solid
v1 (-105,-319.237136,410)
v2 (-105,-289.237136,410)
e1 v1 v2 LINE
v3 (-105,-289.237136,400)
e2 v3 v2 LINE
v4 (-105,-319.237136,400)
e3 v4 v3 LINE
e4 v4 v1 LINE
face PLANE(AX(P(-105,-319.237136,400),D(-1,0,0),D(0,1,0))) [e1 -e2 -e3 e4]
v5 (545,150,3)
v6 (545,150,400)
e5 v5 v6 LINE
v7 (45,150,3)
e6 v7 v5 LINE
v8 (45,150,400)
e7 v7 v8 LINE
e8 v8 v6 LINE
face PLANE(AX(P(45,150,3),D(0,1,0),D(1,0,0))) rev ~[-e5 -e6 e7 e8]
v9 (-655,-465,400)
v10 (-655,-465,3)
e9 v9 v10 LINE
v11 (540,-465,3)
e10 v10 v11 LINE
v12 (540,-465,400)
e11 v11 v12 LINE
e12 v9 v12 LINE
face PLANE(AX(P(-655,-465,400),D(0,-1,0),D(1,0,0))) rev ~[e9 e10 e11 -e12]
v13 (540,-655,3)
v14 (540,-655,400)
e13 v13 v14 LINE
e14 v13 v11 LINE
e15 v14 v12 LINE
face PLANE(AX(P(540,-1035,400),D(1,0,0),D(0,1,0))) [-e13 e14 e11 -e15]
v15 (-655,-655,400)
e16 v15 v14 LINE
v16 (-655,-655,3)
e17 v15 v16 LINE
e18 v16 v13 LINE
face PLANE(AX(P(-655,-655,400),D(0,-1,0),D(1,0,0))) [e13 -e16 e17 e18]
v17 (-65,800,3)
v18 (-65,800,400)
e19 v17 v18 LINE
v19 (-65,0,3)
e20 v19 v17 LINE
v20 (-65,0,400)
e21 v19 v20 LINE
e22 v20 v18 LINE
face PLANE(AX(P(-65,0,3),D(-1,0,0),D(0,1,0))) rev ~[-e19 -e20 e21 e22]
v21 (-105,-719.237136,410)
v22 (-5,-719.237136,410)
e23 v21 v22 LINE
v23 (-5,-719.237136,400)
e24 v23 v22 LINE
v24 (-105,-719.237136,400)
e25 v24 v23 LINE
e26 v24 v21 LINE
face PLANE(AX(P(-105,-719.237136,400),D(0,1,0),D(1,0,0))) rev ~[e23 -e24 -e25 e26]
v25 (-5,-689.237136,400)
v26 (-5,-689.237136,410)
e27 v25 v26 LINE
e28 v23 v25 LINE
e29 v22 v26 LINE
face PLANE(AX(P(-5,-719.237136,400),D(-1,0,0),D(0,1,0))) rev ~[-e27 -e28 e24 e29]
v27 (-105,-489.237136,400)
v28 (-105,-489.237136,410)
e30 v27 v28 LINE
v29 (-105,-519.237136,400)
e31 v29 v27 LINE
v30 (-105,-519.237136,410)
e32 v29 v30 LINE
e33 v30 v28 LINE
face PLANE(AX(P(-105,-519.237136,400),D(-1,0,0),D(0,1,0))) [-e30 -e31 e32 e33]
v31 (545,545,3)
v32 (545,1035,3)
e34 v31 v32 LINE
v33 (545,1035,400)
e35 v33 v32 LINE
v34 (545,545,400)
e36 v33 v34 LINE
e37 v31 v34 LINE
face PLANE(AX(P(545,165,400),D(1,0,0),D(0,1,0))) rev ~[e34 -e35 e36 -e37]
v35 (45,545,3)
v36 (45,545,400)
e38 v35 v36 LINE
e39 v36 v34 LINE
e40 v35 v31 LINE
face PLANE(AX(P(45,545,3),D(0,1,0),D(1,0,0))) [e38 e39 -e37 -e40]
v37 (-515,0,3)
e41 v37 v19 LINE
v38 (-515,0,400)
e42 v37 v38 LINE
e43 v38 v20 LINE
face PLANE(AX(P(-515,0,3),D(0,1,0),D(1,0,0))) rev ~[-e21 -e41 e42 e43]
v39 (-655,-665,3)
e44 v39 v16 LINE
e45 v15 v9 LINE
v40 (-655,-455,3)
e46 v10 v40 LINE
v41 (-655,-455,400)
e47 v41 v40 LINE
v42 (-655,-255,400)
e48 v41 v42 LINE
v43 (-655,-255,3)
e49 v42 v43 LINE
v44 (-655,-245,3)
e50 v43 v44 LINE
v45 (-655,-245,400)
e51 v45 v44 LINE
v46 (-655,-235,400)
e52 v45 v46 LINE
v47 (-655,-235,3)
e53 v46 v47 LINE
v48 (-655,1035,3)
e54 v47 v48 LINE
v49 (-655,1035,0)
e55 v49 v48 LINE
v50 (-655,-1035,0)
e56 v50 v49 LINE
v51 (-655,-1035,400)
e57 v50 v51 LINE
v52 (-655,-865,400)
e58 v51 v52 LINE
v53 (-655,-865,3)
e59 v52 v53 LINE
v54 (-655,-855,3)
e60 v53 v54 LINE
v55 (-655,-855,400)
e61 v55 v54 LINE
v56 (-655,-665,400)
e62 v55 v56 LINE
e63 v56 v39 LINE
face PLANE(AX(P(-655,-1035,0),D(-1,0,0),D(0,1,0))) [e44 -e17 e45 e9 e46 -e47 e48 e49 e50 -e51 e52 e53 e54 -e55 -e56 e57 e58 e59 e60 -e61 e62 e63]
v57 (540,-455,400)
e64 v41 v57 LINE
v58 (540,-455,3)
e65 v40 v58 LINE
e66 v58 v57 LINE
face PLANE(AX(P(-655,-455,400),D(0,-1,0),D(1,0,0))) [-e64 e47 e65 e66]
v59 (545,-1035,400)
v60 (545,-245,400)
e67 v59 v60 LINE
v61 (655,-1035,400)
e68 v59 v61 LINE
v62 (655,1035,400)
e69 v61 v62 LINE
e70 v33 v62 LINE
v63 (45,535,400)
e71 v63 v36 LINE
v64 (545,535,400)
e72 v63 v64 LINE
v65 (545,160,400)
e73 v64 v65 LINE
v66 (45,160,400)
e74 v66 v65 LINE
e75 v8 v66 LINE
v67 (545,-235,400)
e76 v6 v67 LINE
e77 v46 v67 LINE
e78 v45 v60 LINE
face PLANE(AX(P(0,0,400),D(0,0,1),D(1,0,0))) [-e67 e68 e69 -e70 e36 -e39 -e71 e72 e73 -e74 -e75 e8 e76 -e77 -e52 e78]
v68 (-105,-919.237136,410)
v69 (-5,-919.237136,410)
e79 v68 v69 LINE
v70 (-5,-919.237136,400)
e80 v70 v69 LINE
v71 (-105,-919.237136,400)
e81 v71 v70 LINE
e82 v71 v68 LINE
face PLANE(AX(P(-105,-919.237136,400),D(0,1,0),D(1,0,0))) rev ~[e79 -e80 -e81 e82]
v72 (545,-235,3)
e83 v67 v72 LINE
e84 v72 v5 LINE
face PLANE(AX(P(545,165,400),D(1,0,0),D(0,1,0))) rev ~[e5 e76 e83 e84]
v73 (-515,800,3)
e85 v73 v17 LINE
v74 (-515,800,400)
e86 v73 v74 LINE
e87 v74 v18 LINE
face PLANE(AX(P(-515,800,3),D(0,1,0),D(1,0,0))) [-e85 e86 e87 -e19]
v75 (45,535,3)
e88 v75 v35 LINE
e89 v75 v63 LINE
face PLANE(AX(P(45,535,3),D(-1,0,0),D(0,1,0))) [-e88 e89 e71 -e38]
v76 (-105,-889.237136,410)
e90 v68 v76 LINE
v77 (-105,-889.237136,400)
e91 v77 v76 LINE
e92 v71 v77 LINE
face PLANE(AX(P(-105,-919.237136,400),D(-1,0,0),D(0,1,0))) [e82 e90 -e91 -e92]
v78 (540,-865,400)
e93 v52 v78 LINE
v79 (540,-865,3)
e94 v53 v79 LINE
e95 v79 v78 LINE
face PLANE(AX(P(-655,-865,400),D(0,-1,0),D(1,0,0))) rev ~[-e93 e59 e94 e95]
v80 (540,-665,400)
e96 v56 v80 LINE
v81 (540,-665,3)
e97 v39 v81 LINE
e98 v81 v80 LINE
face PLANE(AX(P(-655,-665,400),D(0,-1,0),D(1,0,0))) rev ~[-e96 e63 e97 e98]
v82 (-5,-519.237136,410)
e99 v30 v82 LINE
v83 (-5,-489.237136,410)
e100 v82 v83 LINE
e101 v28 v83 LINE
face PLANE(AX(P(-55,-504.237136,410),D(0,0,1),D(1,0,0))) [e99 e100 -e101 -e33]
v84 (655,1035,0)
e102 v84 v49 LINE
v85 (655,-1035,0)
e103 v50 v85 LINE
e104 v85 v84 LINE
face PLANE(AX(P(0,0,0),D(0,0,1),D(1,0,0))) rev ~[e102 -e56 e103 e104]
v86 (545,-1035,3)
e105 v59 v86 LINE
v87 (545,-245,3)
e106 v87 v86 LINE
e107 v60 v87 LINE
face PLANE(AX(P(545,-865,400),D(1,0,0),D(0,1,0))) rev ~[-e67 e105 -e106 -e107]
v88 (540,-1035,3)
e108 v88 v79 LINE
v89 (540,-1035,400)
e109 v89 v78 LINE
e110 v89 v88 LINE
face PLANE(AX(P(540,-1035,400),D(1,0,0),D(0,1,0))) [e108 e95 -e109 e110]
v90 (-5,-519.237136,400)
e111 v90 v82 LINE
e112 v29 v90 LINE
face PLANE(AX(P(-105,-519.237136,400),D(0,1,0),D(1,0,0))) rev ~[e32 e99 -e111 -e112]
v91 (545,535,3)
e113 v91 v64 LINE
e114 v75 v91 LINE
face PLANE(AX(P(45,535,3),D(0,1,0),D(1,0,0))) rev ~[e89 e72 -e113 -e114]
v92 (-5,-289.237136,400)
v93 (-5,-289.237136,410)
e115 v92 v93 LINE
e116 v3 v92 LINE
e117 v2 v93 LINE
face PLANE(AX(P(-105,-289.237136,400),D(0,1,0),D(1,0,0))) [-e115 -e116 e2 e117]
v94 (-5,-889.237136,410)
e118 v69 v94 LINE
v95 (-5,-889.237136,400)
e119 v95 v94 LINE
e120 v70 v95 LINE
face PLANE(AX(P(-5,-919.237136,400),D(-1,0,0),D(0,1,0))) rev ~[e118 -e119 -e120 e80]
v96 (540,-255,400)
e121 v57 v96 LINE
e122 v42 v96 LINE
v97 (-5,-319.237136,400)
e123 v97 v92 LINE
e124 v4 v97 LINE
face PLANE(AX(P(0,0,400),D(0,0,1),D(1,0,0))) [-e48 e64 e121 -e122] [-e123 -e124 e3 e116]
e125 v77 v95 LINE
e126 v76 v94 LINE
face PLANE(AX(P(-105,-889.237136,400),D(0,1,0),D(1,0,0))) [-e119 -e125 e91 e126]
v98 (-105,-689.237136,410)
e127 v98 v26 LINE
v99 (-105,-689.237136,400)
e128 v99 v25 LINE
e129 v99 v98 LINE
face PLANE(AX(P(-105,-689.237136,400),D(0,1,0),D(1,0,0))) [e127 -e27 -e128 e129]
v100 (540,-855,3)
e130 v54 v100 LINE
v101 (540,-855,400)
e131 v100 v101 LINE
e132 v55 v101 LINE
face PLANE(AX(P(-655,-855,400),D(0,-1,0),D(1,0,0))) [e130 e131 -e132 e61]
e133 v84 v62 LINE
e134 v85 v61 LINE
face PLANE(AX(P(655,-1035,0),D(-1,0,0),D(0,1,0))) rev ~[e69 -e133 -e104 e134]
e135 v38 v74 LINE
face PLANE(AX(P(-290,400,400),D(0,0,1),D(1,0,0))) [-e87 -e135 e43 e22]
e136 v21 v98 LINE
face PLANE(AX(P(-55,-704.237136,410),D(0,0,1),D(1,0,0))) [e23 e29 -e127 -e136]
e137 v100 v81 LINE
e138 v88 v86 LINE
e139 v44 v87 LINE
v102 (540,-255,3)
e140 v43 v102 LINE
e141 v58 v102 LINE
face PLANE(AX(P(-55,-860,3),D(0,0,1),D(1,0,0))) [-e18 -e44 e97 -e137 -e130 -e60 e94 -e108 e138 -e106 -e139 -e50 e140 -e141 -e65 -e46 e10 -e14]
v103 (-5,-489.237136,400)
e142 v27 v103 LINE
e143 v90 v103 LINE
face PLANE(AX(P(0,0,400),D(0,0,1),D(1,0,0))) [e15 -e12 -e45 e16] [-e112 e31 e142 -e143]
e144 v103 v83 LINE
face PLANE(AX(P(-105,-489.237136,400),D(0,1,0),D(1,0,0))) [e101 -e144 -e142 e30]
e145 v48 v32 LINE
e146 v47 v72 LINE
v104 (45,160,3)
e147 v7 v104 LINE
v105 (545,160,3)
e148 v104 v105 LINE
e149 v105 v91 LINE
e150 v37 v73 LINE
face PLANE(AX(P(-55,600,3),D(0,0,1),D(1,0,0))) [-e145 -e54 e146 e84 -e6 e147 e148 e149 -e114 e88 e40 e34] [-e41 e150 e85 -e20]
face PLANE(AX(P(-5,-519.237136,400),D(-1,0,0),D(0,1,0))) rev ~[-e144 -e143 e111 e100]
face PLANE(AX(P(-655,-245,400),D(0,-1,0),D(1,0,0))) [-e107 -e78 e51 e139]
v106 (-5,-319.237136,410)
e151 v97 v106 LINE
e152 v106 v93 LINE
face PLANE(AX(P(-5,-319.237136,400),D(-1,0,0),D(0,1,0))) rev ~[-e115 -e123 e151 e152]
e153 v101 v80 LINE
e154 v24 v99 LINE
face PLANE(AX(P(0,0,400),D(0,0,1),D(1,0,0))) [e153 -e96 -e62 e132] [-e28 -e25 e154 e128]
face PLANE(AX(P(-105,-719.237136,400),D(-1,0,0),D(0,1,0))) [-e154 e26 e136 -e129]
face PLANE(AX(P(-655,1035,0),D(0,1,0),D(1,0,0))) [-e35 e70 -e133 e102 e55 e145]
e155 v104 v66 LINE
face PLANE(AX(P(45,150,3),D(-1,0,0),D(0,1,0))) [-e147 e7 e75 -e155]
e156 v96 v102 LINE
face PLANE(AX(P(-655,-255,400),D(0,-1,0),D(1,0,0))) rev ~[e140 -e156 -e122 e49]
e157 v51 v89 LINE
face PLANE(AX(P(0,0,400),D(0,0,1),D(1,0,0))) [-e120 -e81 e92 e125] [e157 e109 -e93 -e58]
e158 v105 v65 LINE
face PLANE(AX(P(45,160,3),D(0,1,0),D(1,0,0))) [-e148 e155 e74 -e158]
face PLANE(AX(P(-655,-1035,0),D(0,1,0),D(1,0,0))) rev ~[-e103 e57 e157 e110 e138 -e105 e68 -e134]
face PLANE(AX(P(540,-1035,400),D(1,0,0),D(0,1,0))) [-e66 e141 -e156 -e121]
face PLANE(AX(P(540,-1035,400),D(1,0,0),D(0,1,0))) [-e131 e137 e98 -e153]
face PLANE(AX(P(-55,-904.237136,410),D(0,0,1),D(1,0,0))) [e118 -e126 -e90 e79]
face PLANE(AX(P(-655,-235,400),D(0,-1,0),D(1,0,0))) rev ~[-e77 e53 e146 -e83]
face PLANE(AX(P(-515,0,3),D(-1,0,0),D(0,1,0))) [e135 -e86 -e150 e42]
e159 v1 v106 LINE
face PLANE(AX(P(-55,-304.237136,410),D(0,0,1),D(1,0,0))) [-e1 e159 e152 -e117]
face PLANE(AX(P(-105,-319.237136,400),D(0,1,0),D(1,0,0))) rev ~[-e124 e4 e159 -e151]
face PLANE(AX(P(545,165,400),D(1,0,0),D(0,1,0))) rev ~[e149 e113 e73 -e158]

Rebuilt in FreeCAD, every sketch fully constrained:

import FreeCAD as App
import Part
import Sketcher
from FreeCAD import Vector
Q = App.Units.Quantity


def add_polygon(sketch, points):
    """Adds a closed chain of lines whose ends are joined by coincident constraints."""
    first, n = sketch.GeometryCount, len(points)
    for a, b in zip(points, points[1:] + points[:1]):
        sketch.addGeometry(Part.LineSegment(App.Vector(*a, 0), App.Vector(*b, 0)), False)
    for i in range(n):
        sketch.addConstraint(Sketcher.Constraint("Coincident", first + i, 2, first + (i + 1) % n, 1))

doc = App.newDocument("Part")
body = doc.addObject("PartDesign::Body", "Body")

# Sketch on XY plane
sketch1 = doc.addObject("Sketcher::SketchObject", "Sketch")
body.addObject(sketch1)
sketch1.AttachmentSupport = (doc.XY_Plane, [""])
sketch1.MapMode = "FlatFace"
add_polygon(sketch1, [(-655, 1035), (-655, -1035), (655, -1035), (655, 1035)])  # lines 0-3
sketch1.addConstraint([
    Sketcher.Constraint("Vertical", 0),
    Sketcher.Constraint("Horizontal", 1),
    Sketcher.Constraint("Vertical", 2),
    Sketcher.Constraint("Horizontal", 3),
    Sketcher.Constraint("Symmetric", 0, 2, 2, 2, -1, 1),
    Sketcher.Constraint("DistanceX", 1, 1, 1, 2, Q("1310 mm")),
    Sketcher.Constraint("DistanceY", 0, 2, 0, 1, Q("2070 mm")),
])
pad1 = doc.addObject("PartDesign::Pad", "Pad")
body.addObject(pad1)
pad1.Profile = sketch1
pad1.Length = 400

# Sketch on XY plane
sketch2 = doc.addObject("Sketcher::SketchObject", "Sketch001")
body.addObject(sketch2)
sketch2.AttachmentSupport = (doc.XY_Plane, [""])
sketch2.MapMode = "FlatFace"
sketch2.AttachmentOffset = App.Placement(Vector(0, 0, 400), App.Rotation())
add_polygon(sketch2, [(-655, 165), (-655, -235), (545, -235), (545, 165)])  # lines 0-3
sketch2.addConstraint([
    Sketcher.Constraint("Vertical", 0),
    Sketcher.Constraint("Horizontal", 1),
    Sketcher.Constraint("Vertical", 2),
    Sketcher.Constraint("Horizontal", 3),
    Sketcher.Constraint("DistanceX", 1, 1, 1, 2, Q("1200 mm")),
    Sketcher.Constraint("DistanceY", 0, 2, 0, 1, Q("400 mm")),
    Sketcher.Constraint("DistanceX", 0, 2, -1, 1, Q("655 mm")),
    Sketcher.Constraint("DistanceY", 0, 2, -1, 1, Q("235 mm")),
])
pocket1 = doc.addObject("PartDesign::Pocket", "Pocket")
body.addObject(pocket1)
pocket1.Profile = sketch2
pocket1.Length = 397

# Sketch on XY plane
sketch3 = doc.addObject("Sketcher::SketchObject", "Sketch002")
body.addObject(sketch3)
sketch3.AttachmentSupport = (doc.XY_Plane, [""])
sketch3.MapMode = "FlatFace"
sketch3.AttachmentOffset = App.Placement(Vector(0, 0, 400), App.Rotation())
add_polygon(sketch3, [(-655, -245), (-655, -255), (545, -255), (545, -245)])  # lines 0-3
sketch3.addConstraint([
    Sketcher.Constraint("Vertical", 0),
    Sketcher.Constraint("Horizontal", 1),
    Sketcher.Constraint("Vertical", 2),
    Sketcher.Constraint("Horizontal", 3),
    Sketcher.Constraint("DistanceX", 1, 1, 1, 2, Q("1200 mm")),
    Sketcher.Constraint("DistanceY", 0, 2, 0, 1, Q("10 mm")),
    Sketcher.Constraint("DistanceX", 0, 2, -1, 1, Q("655 mm")),
    Sketcher.Constraint("DistanceY", 0, 2, -1, 1, Q("255 mm")),
])
pocket2 = doc.addObject("PartDesign::Pocket", "Pocket001")
body.addObject(pocket2)
pocket2.Profile = sketch3
pocket2.Length = 397

# Sketch on XY plane
sketch4 = doc.addObject("Sketcher::SketchObject", "Sketch003")
body.addObject(sketch4)
sketch4.AttachmentSupport = (doc.XY_Plane, [""])
sketch4.MapMode = "FlatFace"
sketch4.AttachmentOffset = App.Placement(Vector(0, 0, 400), App.Rotation())
add_polygon(sketch4, [(-655, -455), (-655, -465), (545, -465), (545, -455)])  # lines 0-3
sketch4.addConstraint([
    Sketcher.Constraint("Vertical", 0),
    Sketcher.Constraint("Horizontal", 1),
    Sketcher.Constraint("Vertical", 2),
    Sketcher.Constraint("Horizontal", 3),
    Sketcher.Constraint("DistanceX", 1, 1, 1, 2, Q("1200 mm")),
    Sketcher.Constraint("DistanceY", 0, 2, 0, 1, Q("10 mm")),
    Sketcher.Constraint("DistanceX", 0, 2, -1, 1, Q("655 mm")),
    Sketcher.Constraint("DistanceY", 0, 2, -1, 1, Q("465 mm")),
])
pocket3 = doc.addObject("PartDesign::Pocket", "Pocket002")
body.addObject(pocket3)
pocket3.Profile = sketch4
pocket3.Length = 397
doc.recompute()

linearpattern = doc.addObject("PartDesign::LinearPattern", "LinearPattern")
body.addObject(linearpattern)
linearpattern.Originals = [pocket3]
linearpattern.Direction = (doc.Y_Axis, [""])
linearpattern.Mode = "offset"
linearpattern.Offset = 200
linearpattern.Occurrences = 3
linearpattern.Reversed = True
body.Tip = linearpattern

# Sketch on XY plane
sketch5 = doc.addObject("Sketcher::SketchObject", "Sketch004")
body.addObject(sketch5)
sketch5.AttachmentSupport = (doc.XY_Plane, [""])
sketch5.MapMode = "FlatFace"
sketch5.AttachmentOffset = App.Placement(Vector(0, 0, 400), App.Rotation())
add_polygon(sketch5, [(-105, -289), (-105, -319), (-5, -319), (-5, -289)])  # lines 0-3
sketch5.addConstraint([
    Sketcher.Constraint("Vertical", 0),
    Sketcher.Constraint("Horizontal", 1),
    Sketcher.Constraint("Vertical", 2),
    Sketcher.Constraint("Horizontal", 3),
    Sketcher.Constraint("DistanceX", 1, 1, 1, 2, Q("100 mm")),
    Sketcher.Constraint("DistanceY", 0, 2, 0, 1, Q("30 mm")),
    Sketcher.Constraint("DistanceX", 0, 2, -1, 1, Q("105 mm")),
    Sketcher.Constraint("DistanceY", 0, 2, -1, 1, Q("319.237136 mm")),
])
pad2 = doc.addObject("PartDesign::Pad", "Pad001")
body.addObject(pad2)
pad2.Profile = sketch5
pad2.Length = 10
doc.recompute()

linearpattern2 = doc.addObject("PartDesign::LinearPattern", "LinearPattern001")
body.addObject(linearpattern2)
linearpattern2.Originals = [pad2]
linearpattern2.Direction = (doc.Y_Axis, [""])
linearpattern2.Mode = "offset"
linearpattern2.Offset = 200
linearpattern2.Occurrences = 4
linearpattern2.Reversed = True
body.Tip = linearpattern2

# Sketch on XY plane
sketch6 = doc.addObject("Sketcher::SketchObject", "Sketch005")
body.addObject(sketch6)
sketch6.AttachmentSupport = (doc.XY_Plane, [""])
sketch6.MapMode = "FlatFace"
sketch6.AttachmentOffset = App.Placement(Vector(0, 0, 400), App.Rotation())
add_polygon(sketch6, [(45, 675), (45, 665), (545, 665), (545, 675)])  # lines 0-3
sketch6.addConstraint([
    Sketcher.Constraint("Vertical", 0),
    Sketcher.Constraint("Horizontal", 1),
    Sketcher.Constraint("Vertical", 2),
    Sketcher.Constraint("Horizontal", 3),
    Sketcher.Constraint("DistanceX", 1, 1, 1, 2, Q("500 mm")),
    Sketcher.Constraint("DistanceY", 0, 2, 0, 1, Q("10 mm")),
    Sketcher.Constraint("DistanceX", -1, 1, 0, 2, Q("45 mm")),
    Sketcher.Constraint("DistanceY", -1, 1, 0, 2, Q("665 mm")),
])
pocket4 = doc.addObject("PartDesign::Pocket", "Pocket003")
body.addObject(pocket4)
pocket4.Profile = sketch6
pocket4.Length = 397

# Sketch on XY plane
sketch7 = doc.addObject("Sketcher::SketchObject", "Sketch006")
body.addObject(sketch7)
sketch7.AttachmentSupport = (doc.XY_Plane, [""])
sketch7.MapMode = "FlatFace"
sketch7.AttachmentOffset = App.Placement(Vector(0, 0, 400), App.Rotation())
add_polygon(sketch7, [(-655, 1035), (-655, 165), (545, 165), (545, 1035)])  # lines 0-3
sketch7.addConstraint([
    Sketcher.Constraint("Vertical", 0),
    Sketcher.Constraint("Horizontal", 1),
    Sketcher.Constraint("Vertical", 2),
    Sketcher.Constraint("Horizontal", 3),
    Sketcher.Constraint("DistanceX", 1, 1, 1, 2, Q("1200 mm")),
    Sketcher.Constraint("DistanceY", 0, 2, 0, 1, Q("870 mm")),
    Sketcher.Constraint("DistanceX", 0, 2, -1, 1, Q("655 mm")),
    Sketcher.Constraint("DistanceY", -1, 1, 0, 2, Q("165 mm")),
])
pocket5 = doc.addObject("PartDesign::Pocket", "Pocket004")
body.addObject(pocket5)
pocket5.Profile = sketch7
pocket5.Length = 397
body2 = doc.addObject("PartDesign::Body", "Body001")

# Sketch on XY plane
sketch8 = doc.addObject("Sketcher::SketchObject", "Sketch007")
body2.addObject(sketch8)
sketch8.AttachmentSupport = (doc.getObject("XY_Plane001"), [""])
sketch8.MapMode = "FlatFace"
sketch8.AttachmentOffset = App.Placement(Vector(0, 0, 400), App.Rotation())
add_polygon(sketch8, [(545, 1035), (545, -1035), (655, -1035), (655, 1035)])  # lines 0-3
sketch8.addConstraint([
    Sketcher.Constraint("Vertical", 0),
    Sketcher.Constraint("Horizontal", 1),
    Sketcher.Constraint("Vertical", 2),
    Sketcher.Constraint("Horizontal", 3),
    Sketcher.Constraint("DistanceX", 1, 1, 1, 2, Q("110 mm")),
    Sketcher.Constraint("DistanceY", 0, 2, 0, 1, Q("2070 mm")),
    Sketcher.Constraint("DistanceX", -1, 1, 0, 2, Q("545 mm")),
    Sketcher.Constraint("DistanceY", 0, 2, -1, 1, Q("1035 mm")),
])
pad3 = doc.addObject("PartDesign::Pad", "Pad002")
body2.addObject(pad3)
pad3.Profile = sketch8
pad3.Length = 400
pad3.Reversed = True
doc.recompute()

boolean = doc.addObject("PartDesign::Boolean", "Boolean")
body.addObject(boolean)
boolean.Type = "Fuse"
boolean.addObjects([body2])

# Sketch on XY plane
sketch9 = doc.addObject("Sketcher::SketchObject", "Sketch008")
body.addObject(sketch9)
sketch9.AttachmentSupport = (doc.XY_Plane, [""])
sketch9.MapMode = "FlatFace"
sketch9.AttachmentOffset = App.Placement(Vector(0, 0, 3), App.Rotation())
add_polygon(sketch9, [(45, 160), (45, 150), (545, 150), (545, 160)])  # lines 0-3
sketch9.addConstraint([
    Sketcher.Constraint("Vertical", 0),
    Sketcher.Constraint("Horizontal", 1),
    Sketcher.Constraint("Vertical", 2),
    Sketcher.Constraint("Horizontal", 3),
    Sketcher.Constraint("DistanceX", 1, 1, 1, 2, Q("500 mm")),
    Sketcher.Constraint("DistanceY", 0, 2, 0, 1, Q("10 mm")),
    Sketcher.Constraint("DistanceX", -1, 1, 0, 2, Q("45 mm")),
    Sketcher.Constraint("DistanceY", -1, 1, 0, 2, Q("150 mm")),
])
pad4 = doc.addObject("PartDesign::Pad", "Pad003")
body.addObject(pad4)
pad4.Profile = sketch9
pad4.Length = 397
doc.recompute()

linearpattern3 = doc.addObject("PartDesign::LinearPattern", "LinearPattern002")
body.addObject(linearpattern3)
linearpattern3.Originals = [pad4]
linearpattern3.Direction = (doc.Y_Axis, [""])
linearpattern3.Mode = "offset"
linearpattern3.Offset = 385
linearpattern3.Occurrences = 2
body.Tip = linearpattern3

# Sketch on XY plane
sketch10 = doc.addObject("Sketcher::SketchObject", "Sketch009")
body.addObject(sketch10)
sketch10.AttachmentSupport = (doc.XY_Plane, [""])
sketch10.MapMode = "FlatFace"
sketch10.AttachmentOffset = App.Placement(Vector(0, 0, 400), App.Rotation())
add_polygon(sketch10, [(540, -255), (540, -1035), (545, -1035), (545, -255)])  # lines 0-3
sketch10.addConstraint([
    Sketcher.Constraint("Vertical", 0),
    Sketcher.Constraint("Horizontal", 1),
    Sketcher.Constraint("Vertical", 2),
    Sketcher.Constraint("Horizontal", 3),
    Sketcher.Constraint("DistanceX", 1, 1, 1, 2, Q("5 mm")),
    Sketcher.Constraint("DistanceY", 0, 2, 0, 1, Q("780 mm")),
    Sketcher.Constraint("DistanceX", -1, 1, 0, 2, Q("540 mm")),
    Sketcher.Constraint("DistanceY", 0, 2, -1, 1, Q("1035 mm")),
])
pocket6 = doc.addObject("PartDesign::Pocket", "Pocket005")
body.addObject(pocket6)
pocket6.Profile = sketch10
pocket6.Length = 397

# Sketch on XY plane
sketch11 = doc.addObject("Sketcher::SketchObject", "Sketch010")
body.addObject(sketch11)
sketch11.AttachmentSupport = (doc.XY_Plane, [""])
sketch11.MapMode = "FlatFace"
sketch11.AttachmentOffset = App.Placement(Vector(0, 0, 3), App.Rotation())
add_polygon(sketch11, [(-515, 800), (-515, 0), (-65, 0), (-65, 800)])  # lines 0-3
sketch11.addConstraint([
    Sketcher.Constraint("Vertical", 0),
    Sketcher.Constraint("Horizontal", 1),
    Sketcher.Constraint("Vertical", 2),
    Sketcher.Constraint("Horizontal", 3),
    Sketcher.Constraint("PointOnObject", 0, 2, -1),
    Sketcher.Constraint("DistanceX", 1, 1, 1, 2, Q("450 mm")),
    Sketcher.Constraint("DistanceY", 0, 2, 0, 1, Q("800 mm")),
    Sketcher.Constraint("DistanceX", 0, 2, -1, 1, Q("515 mm")),
])
pad5 = doc.addObject("PartDesign::Pad", "Pad004")
body.addObject(pad5)
pad5.Profile = sketch11
pad5.Length = 397

doc.recompute()
